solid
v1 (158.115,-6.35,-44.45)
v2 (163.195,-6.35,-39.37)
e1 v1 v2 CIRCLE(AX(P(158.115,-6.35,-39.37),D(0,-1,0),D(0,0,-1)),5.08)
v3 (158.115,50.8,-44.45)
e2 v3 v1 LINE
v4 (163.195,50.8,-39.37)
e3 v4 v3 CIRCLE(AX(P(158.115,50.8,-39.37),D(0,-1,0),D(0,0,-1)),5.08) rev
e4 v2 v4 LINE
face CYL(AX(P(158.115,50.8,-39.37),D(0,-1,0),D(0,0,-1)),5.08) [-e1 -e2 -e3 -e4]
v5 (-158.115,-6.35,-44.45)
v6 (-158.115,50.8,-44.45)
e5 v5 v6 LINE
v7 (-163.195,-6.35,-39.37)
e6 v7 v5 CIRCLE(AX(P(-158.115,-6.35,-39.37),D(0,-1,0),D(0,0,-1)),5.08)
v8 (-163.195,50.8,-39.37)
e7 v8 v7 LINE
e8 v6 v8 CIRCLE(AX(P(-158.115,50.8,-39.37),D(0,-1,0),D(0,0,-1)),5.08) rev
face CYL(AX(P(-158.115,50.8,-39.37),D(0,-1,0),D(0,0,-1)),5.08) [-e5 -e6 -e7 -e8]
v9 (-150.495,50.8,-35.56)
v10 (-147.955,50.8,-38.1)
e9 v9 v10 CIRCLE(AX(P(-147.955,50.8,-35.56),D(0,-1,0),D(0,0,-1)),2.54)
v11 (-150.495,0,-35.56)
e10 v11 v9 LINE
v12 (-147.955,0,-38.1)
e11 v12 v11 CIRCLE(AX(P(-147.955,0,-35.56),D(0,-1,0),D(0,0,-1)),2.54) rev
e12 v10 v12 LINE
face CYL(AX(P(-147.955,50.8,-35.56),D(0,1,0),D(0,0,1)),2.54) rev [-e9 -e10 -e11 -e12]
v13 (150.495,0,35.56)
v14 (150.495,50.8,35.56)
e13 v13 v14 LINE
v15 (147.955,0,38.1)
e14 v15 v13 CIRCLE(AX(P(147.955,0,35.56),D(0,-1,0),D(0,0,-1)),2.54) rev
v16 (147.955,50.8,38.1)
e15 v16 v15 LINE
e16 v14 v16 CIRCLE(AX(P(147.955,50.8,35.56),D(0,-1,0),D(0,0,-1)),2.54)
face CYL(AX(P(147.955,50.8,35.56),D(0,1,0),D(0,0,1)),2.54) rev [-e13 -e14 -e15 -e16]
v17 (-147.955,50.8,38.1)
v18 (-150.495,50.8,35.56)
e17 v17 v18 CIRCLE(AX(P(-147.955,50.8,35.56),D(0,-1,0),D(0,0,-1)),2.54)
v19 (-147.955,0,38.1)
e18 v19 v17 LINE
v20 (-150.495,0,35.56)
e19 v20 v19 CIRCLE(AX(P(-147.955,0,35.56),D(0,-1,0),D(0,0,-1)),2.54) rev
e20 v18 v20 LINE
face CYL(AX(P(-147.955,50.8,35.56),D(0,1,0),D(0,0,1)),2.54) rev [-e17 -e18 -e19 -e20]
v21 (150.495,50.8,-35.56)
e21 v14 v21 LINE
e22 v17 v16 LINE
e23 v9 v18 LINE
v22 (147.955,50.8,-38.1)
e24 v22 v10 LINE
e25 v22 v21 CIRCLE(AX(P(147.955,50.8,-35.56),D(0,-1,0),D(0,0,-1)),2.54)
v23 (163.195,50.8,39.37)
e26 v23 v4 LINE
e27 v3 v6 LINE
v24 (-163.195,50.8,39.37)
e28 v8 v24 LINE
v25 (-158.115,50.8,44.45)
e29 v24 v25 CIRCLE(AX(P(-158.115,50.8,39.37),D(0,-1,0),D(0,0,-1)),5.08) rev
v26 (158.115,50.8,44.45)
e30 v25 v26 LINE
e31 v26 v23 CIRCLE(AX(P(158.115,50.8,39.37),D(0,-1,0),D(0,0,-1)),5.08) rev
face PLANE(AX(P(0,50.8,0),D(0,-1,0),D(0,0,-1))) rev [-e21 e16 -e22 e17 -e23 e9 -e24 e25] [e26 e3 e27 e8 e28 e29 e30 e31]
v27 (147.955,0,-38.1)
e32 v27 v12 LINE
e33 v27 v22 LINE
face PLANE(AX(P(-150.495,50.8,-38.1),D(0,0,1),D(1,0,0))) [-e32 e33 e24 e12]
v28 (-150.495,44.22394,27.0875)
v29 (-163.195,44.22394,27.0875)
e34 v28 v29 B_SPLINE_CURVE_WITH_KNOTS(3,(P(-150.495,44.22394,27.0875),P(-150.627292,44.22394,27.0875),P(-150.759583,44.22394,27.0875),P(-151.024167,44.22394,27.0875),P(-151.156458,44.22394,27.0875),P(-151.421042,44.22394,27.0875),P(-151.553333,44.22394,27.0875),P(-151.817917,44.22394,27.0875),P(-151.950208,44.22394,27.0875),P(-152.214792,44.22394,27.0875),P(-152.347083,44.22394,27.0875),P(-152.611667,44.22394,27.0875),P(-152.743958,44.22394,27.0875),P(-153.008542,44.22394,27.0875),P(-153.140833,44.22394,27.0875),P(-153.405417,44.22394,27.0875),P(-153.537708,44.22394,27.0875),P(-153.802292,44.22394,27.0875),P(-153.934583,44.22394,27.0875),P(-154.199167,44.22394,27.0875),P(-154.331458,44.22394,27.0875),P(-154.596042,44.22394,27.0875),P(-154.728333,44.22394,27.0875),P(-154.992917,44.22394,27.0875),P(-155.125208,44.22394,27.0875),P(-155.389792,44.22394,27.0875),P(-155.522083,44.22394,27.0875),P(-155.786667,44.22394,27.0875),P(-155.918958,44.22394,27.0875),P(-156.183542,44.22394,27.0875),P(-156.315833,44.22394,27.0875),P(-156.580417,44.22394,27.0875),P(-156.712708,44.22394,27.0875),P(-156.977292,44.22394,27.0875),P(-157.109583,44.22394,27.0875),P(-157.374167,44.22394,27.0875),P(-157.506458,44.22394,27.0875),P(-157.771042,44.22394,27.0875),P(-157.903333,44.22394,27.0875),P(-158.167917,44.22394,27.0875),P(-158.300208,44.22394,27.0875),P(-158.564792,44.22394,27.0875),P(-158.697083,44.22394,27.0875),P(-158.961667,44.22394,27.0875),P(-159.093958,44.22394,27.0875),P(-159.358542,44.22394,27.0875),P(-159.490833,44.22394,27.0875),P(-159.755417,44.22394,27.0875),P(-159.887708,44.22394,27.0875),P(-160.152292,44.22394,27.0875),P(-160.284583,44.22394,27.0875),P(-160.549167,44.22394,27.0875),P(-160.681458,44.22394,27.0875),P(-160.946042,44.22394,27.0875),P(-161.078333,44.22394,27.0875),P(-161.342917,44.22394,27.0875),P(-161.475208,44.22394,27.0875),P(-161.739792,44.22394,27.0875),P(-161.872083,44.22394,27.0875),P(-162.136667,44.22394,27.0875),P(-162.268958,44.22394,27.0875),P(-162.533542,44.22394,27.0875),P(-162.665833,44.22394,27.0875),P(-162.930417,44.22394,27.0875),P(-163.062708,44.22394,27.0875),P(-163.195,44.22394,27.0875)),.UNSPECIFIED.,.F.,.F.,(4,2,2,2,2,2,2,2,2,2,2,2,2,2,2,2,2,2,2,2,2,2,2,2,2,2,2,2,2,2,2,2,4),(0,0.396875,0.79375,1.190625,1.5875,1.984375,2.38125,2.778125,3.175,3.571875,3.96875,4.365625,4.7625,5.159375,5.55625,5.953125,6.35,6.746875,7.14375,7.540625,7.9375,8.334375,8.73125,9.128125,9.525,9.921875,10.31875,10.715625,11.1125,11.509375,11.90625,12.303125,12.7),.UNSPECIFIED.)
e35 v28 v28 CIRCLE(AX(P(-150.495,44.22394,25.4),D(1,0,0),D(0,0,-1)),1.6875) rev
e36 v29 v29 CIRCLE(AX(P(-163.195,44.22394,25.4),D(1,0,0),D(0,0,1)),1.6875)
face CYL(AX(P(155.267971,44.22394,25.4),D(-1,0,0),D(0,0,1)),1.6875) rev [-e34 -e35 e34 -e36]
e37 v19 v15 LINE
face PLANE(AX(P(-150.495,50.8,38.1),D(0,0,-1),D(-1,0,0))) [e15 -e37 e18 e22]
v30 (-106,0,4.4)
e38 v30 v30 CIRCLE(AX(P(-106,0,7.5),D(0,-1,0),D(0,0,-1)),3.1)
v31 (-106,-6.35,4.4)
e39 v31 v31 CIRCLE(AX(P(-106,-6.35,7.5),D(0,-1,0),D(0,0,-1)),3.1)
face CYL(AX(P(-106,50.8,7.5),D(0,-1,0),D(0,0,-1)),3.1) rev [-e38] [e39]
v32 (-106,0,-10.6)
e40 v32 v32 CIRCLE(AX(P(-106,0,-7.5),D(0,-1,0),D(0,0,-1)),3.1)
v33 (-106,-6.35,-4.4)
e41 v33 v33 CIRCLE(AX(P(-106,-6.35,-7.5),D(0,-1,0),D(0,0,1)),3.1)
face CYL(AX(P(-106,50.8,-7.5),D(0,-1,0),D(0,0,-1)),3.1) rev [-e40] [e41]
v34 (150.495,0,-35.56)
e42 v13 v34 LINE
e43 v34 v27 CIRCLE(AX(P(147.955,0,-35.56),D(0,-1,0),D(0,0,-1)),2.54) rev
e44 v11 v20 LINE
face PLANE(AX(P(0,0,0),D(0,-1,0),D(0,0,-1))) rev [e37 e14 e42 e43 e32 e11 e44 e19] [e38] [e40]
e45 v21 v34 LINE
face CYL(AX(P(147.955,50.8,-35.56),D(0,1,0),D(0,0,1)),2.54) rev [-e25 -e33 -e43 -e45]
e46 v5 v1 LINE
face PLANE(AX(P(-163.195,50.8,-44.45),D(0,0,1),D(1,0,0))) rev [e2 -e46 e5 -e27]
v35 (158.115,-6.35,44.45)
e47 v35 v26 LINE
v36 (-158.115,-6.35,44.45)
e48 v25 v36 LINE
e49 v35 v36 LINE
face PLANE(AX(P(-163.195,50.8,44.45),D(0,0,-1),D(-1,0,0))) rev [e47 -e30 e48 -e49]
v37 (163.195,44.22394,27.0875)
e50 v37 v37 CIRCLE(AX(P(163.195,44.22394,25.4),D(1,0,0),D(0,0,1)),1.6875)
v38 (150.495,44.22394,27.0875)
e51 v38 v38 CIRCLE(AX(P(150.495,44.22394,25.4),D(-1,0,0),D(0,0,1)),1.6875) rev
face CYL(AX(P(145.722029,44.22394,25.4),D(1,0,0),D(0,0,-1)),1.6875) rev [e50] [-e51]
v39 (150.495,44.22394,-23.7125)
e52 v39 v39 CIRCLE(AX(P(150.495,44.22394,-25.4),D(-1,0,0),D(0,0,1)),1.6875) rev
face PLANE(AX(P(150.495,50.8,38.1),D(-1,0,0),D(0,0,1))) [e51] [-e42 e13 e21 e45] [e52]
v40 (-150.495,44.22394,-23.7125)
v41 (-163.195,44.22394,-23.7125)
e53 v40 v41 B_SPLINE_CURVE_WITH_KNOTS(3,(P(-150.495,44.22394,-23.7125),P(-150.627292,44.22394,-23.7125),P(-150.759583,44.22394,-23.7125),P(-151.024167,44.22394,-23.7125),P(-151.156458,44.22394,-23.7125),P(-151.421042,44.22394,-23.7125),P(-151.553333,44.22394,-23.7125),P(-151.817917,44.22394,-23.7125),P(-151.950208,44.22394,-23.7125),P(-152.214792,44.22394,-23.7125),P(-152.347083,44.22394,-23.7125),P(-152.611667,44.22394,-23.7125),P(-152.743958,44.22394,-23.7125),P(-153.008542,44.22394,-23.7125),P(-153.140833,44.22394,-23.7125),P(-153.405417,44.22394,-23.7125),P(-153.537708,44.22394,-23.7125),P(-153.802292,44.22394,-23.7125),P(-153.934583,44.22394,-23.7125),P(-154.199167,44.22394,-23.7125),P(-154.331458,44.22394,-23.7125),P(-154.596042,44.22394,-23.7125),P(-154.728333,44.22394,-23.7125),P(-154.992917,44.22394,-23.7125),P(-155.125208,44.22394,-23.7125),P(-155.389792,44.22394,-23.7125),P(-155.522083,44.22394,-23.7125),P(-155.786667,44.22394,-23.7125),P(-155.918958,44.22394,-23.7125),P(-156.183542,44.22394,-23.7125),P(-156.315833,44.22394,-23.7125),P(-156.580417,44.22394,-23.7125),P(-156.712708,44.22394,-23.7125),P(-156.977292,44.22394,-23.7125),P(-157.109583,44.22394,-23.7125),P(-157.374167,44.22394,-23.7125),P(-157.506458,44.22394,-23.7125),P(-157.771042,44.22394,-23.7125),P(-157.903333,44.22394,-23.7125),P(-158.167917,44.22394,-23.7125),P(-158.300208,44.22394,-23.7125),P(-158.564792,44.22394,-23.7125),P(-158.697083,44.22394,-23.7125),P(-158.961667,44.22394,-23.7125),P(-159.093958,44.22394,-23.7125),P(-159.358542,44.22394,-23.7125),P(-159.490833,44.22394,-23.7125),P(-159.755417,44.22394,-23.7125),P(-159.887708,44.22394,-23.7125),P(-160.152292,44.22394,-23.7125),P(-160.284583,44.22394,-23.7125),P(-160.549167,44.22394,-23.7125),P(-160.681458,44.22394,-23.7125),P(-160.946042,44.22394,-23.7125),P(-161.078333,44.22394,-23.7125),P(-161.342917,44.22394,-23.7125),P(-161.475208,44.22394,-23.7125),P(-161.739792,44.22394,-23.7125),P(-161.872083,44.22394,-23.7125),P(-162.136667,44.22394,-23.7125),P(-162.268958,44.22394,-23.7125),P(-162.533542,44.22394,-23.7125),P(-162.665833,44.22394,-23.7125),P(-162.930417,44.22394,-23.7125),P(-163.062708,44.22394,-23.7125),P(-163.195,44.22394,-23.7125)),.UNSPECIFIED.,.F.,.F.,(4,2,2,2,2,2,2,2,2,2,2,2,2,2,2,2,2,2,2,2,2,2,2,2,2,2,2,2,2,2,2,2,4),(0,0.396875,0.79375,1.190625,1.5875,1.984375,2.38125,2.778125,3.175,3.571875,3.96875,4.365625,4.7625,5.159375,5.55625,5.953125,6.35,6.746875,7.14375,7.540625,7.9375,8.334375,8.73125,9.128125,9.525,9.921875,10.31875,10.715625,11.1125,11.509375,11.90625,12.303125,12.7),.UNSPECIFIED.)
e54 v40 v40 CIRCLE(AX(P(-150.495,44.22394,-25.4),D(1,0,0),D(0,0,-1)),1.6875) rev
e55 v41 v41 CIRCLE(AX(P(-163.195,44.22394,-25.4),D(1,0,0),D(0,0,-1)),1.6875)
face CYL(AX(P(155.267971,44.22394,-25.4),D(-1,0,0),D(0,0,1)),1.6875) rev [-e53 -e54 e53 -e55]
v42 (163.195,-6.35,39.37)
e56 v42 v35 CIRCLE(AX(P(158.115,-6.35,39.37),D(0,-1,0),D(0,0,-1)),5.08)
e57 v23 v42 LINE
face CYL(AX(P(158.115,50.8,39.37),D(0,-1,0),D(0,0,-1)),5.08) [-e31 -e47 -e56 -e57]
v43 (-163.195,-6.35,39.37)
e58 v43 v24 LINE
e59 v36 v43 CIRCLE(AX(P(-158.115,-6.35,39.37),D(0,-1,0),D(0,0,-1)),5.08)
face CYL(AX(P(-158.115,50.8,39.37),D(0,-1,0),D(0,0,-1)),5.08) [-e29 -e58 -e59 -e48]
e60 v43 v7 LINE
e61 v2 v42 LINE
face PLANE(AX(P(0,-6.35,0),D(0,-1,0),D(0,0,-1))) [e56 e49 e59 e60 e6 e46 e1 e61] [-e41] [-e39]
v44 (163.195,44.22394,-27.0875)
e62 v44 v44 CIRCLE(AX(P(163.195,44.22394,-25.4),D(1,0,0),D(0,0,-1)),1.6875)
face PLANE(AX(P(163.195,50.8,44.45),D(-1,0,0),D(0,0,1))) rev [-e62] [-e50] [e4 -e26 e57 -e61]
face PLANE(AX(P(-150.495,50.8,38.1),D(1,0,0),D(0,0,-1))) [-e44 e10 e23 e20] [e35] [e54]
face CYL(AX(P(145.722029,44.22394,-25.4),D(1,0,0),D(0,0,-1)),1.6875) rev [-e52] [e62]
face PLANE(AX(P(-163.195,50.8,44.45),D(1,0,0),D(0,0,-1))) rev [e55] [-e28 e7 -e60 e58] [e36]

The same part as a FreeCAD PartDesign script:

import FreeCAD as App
import Part
import Sketcher
from FreeCAD import Vector
Q = App.Units.Quantity


def edges_at(feature, points):
    """Names of the edges that pass closest to the given points."""
    edges = feature.Shape.Edges
    near = lambda p: min(range(len(edges)), key=lambda i: edges[i].distToShape(Part.Vertex(*p))[0])
    return sorted({f"Edge{near(p) + 1}" for p in points})

doc = App.newDocument("Part")
body = doc.addObject("PartDesign::Body", "Body")

# Sketch on XZ plane
sketch1 = body.newObject("Sketcher::SketchObject", "Sketch")
sketch1.AttachmentSupport = (doc.getObject("XZ_Plane"), [""])
sketch1.MapMode = "FlatFace"
sketch1.addGeometry(Part.LineSegment(Vector(-163.195, -44.45, 0), Vector(-163.195, 44.45, 0)), False)
sketch1.addGeometry(Part.LineSegment(Vector(-163.195, 44.45, 0), Vector(163.195, 44.45, 0)), False)
sketch1.addGeometry(Part.LineSegment(Vector(163.195, 44.45, 0), Vector(163.195, -44.45, 0)), False)
sketch1.addGeometry(Part.LineSegment(Vector(163.195, -44.45, 0), Vector(-163.195, -44.45, 0)), False)
sketch1.addGeometry(Part.LineSegment(Vector(150.495, 38.1, 0), Vector(-150.495, 38.1, 0)), False)
sketch1.addGeometry(Part.LineSegment(Vector(-150.495, 38.1, 0), Vector(-150.495, -38.1, 0)), False)
sketch1.addGeometry(Part.LineSegment(Vector(-150.495, -38.1, 0), Vector(150.495, -38.1, 0)), False)
sketch1.addGeometry(Part.LineSegment(Vector(150.495, -38.1, 0), Vector(150.495, 38.1, 0)), False)
sketch1.addConstraint(Sketcher.Constraint("Coincident", 0, 2, 1, 1))
sketch1.addConstraint(Sketcher.Constraint("Coincident", 1, 2, 2, 1))
sketch1.addConstraint(Sketcher.Constraint("Coincident", 2, 2, 3, 1))
sketch1.addConstraint(Sketcher.Constraint("Coincident", 3, 2, 0, 1))
sketch1.addConstraint(Sketcher.Constraint("Coincident", 4, 2, 5, 1))
sketch1.addConstraint(Sketcher.Constraint("Coincident", 5, 2, 6, 1))
sketch1.addConstraint(Sketcher.Constraint("Coincident", 6, 2, 7, 1))
sketch1.addConstraint(Sketcher.Constraint("Coincident", 7, 2, 4, 1))
sketch1.addConstraint(Sketcher.Constraint("Vertical", 0))
sketch1.addConstraint(Sketcher.Constraint("Horizontal", 1))
sketch1.addConstraint(Sketcher.Constraint("Vertical", 2))
sketch1.addConstraint(Sketcher.Constraint("Horizontal", 3))
sketch1.addConstraint(Sketcher.Constraint("Horizontal", 4))
sketch1.addConstraint(Sketcher.Constraint("Vertical", 5))
sketch1.addConstraint(Sketcher.Constraint("Horizontal", 6))
sketch1.addConstraint(Sketcher.Constraint("Vertical", 7))
sketch1.addConstraint(Sketcher.Constraint("Symmetric", 0, 2, 2, 2, -1, 1))
sketch1.addConstraint(Sketcher.Constraint("Symmetric", 4, 2, 6, 2, -1, 1))
sketch1.addConstraint(Sketcher.Constraint("DistanceY", 5, 2, 5, 1, Q("3 in")))
sketch1.addConstraint(Sketcher.Constraint("DistanceY", 0, 1, 0, 2, Q("3.5 in")))
sketch1.addConstraint(Sketcher.Constraint("DistanceX", 1, 1, 1, 2, Q("12.85 in")))
sketch1.addConstraint(Sketcher.Constraint("DistanceX", 4, 2, 4, 1, Q("11.85 in")))
pad1 = body.newObject("PartDesign::Pad", "Pad")
pad1.Profile = sketch1
pad1.Length = Q("2 in")
pad1.Reversed = True

# Sketch on XZ plane
sketch2 = body.newObject("Sketcher::SketchObject", "Sketch001")
sketch2.AttachmentSupport = (doc.getObject("XZ_Plane"), [""])
sketch2.MapMode = "FlatFace"
sketch2.addGeometry(Part.LineSegment(Vector(-163.195, 44.45, 0), Vector(-163.195, -44.45, 0)), False)
sketch2.addGeometry(Part.LineSegment(Vector(-163.195, -44.45, 0), Vector(163.195, -44.45, 0)), False)
sketch2.addGeometry(Part.LineSegment(Vector(163.195, -44.45, 0), Vector(163.195, 44.45, 0)), False)
sketch2.addGeometry(Part.LineSegment(Vector(163.195, 44.45, 0), Vector(-163.195, 44.45, 0)), False)
sketch2.addConstraint(Sketcher.Constraint("Coincident", 0, 2, 1, 1))
sketch2.addConstraint(Sketcher.Constraint("Coincident", 1, 2, 2, 1))
sketch2.addConstraint(Sketcher.Constraint("Coincident", 2, 2, 3, 1))
sketch2.addConstraint(Sketcher.Constraint("Coincident", 3, 2, 0, 1))
sketch2.addConstraint(Sketcher.Constraint("Vertical", 0))
sketch2.addConstraint(Sketcher.Constraint("Horizontal", 1))
sketch2.addConstraint(Sketcher.Constraint("Vertical", 2))
sketch2.addConstraint(Sketcher.Constraint("Horizontal", 3))
sketch2.addConstraint(Sketcher.Constraint("Symmetric", 0, 2, 2, 2, -1, 1))
sketch2.addConstraint(Sketcher.Constraint("DistanceY", 0, 2, 0, 1, Q("3.5 in")))
sketch2.addConstraint(Sketcher.Constraint("DistanceX", 1, 1, 1, 2, Q("12.85 in")))
pad2 = body.newObject("PartDesign::Pad", "Pad001")
pad2.Profile = sketch2
pad2.Length = Q("0.25 in")

# Sketch on XZ plane
sketch3 = body.newObject("Sketcher::SketchObject", "Sketch002")
sketch3.AttachmentSupport = (doc.getObject("XZ_Plane"), [""])
sketch3.MapMode = "FlatFace"
sketch3.AttachmentOffset = App.Placement(Vector(0, 0, 0.25 * 25.4), App.Rotation())
sketch3.addGeometry(Part.Circle(Vector(-106, 7.5, 0), Vector(0, 0, 1), 3.1), False)
sketch3.addGeometry(Part.Circle(Vector(-106, -7.5, 0), Vector(0, 0, 1), 3.1), False)
sketch3.addConstraint(Sketcher.Constraint("Equal", 0, 1))
sketch3.addConstraint(Sketcher.Constraint("Symmetric", 0, 3, 1, 3, -1))
sketch3.addConstraint(Sketcher.Constraint("Diameter", 0, Q("6.2 mm")))
sketch3.addConstraint(Sketcher.Constraint("DistanceX", 0, 3, -1, 1, Q("106 mm")))
sketch3.addConstraint(Sketcher.Constraint("DistanceY", -1, 1, 0, 3, Q("7.5 mm")))
pocket1 = body.newObject("PartDesign::Pocket", "Pocket")
pocket1.Profile = sketch3
pocket1.Type = "ThroughAll"

# Sketch on YZ plane
sketch4 = body.newObject("Sketcher::SketchObject", "Sketch003")
sketch4.AttachmentSupport = (doc.getObject("YZ_Plane"), [""])
sketch4.MapMode = "FlatFace"
sketch4.AttachmentOffset = App.Placement(Vector(0, 0, 6.425 * 25.4), App.Rotation())
sketch4.addGeometry(Part.Circle(Vector(44.22394, -25.4, 0), Vector(0, 0, 1), 1.6875), False)
sketch4.addGeometry(Part.Circle(Vector(44.22394, 25.4, 0), Vector(0, 0, 1), 1.6875), False)
sketch4.addConstraint(Sketcher.Constraint("Equal", 0, 1))
sketch4.addConstraint(Sketcher.Constraint("Symmetric", 0, 3, 1, 3, -1))
sketch4.addConstraint(Sketcher.Constraint("DistanceY", 0, 3, -1, 1, Q("1 in")))
sketch4.addConstraint(Sketcher.Constraint("Diameter", 0, Q("3.375 mm")))
sketch4.addConstraint(Sketcher.Constraint("DistanceX", -1, 1, 0, 3, Q("1.7411 in")))
pocket2 = body.newObject("PartDesign::Pocket", "Pocket001")
pocket2.Profile = sketch4
pocket2.Length = Q("12.35 in")
doc.recompute()

mirrored = body.newObject("PartDesign::Mirrored", "Mirrored")
mirrored.Originals = [pocket2]
mirrored.MirrorPlane = (doc.getObject("YZ_Plane"), [""])
body.Tip = mirrored
doc.recompute()

fillet = body.newObject("PartDesign::Fillet", "Fillet")
fillet.Base = (mirrored, edges_at(mirrored, [
    (163.195, 22.225, 44.45),
    (-163.195, 22.225, 44.45),
    (-163.195, 22.225, -44.45),
    (163.195, 22.225, -44.45),
]))
fillet.Radius = Q("0.2 in")
doc.recompute()

fillet2 = body.newObject("PartDesign::Fillet", "Fillet001")
fillet2.Base = (fillet, edges_at(fillet, [
    (150.495, 25.4, 38.1),
    (150.495, 25.4, -38.1),
    (-150.495, 25.4, -38.1),
    (-150.495, 25.4, 38.1),
]))
fillet2.Radius = Q("0.1 in")

doc.recompute()
